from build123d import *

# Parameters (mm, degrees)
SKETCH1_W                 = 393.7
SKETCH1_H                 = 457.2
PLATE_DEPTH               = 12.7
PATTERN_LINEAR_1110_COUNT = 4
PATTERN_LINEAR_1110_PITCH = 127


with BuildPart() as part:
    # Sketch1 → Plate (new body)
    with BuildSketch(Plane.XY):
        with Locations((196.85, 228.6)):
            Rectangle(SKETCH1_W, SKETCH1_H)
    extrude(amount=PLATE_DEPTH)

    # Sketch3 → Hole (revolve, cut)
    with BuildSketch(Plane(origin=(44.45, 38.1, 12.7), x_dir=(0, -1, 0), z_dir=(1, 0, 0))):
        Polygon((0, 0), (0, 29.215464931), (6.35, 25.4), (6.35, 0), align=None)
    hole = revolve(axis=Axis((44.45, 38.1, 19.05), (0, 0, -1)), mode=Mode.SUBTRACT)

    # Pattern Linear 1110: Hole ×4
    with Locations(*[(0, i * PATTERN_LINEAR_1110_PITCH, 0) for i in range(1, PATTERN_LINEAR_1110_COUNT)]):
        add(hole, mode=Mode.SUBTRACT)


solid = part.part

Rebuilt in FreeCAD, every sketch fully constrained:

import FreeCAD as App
import Part
import Sketcher
Q = App.Units.Quantity

doc = App.newDocument("Part")
body = doc.addObject("PartDesign::Body", "Body")

# Sketch on XY plane
sketch1 = body.newObject("Sketcher::SketchObject", "Sketch")
sketch1.AttachmentSupport = (doc.getObject("XY_Plane"), [""])
sketch1.MapMode = "FlatFace"
sketch1.addGeometry([
    Part.LineSegment(App.Vector(0, 457.2, 0), App.Vector(0, 0, 0)),
    Part.LineSegment(App.Vector(0, 0, 0), App.Vector(393.7, 0, 0)),
    Part.LineSegment(App.Vector(393.7, 0, 0), App.Vector(393.7, 457.2, 0)),
    Part.LineSegment(App.Vector(393.7, 457.2, 0), App.Vector(0, 457.2, 0)),
], False)
sketch1.addConstraint([
    Sketcher.Constraint("Coincident", 0, 2, 1, 1),
    Sketcher.Constraint("Coincident", 1, 2, 2, 1),
    Sketcher.Constraint("Coincident", 2, 2, 3, 1),
    Sketcher.Constraint("Coincident", 3, 2, 0, 1),
    Sketcher.Constraint("Vertical", 0),
    Sketcher.Constraint("Horizontal", 1),
    Sketcher.Constraint("Vertical", 2),
    Sketcher.Constraint("Horizontal", 3),
    Sketcher.Constraint("Coincident", 0, 2, -1, 1),
    Sketcher.Constraint("DistanceY", 0, 2, 0, 1, Q("18 in")),
    Sketcher.Constraint("DistanceX", 1, 1, 1, 2, Q("15.5 in")),
])
pad1 = body.newObject("PartDesign::Pad", "Pad")
pad1.Profile = sketch1
pad1.Length = Q("0.5 in")

# Sketch on YZ plane
sketch2 = body.newObject("Sketcher::SketchObject", "Sketch001")
sketch2.AttachmentSupport = (doc.getObject("YZ_Plane"), [""])
sketch2.MapMode = "FlatFace"
sketch2.AttachmentOffset = App.Placement(App.Vector(0, 0, 1.75 * 25.4), App.Rotation())
sketch2.addGeometry([
    Part.LineSegment(App.Vector(38.1, -16.515465, 0), App.Vector(38.1, 12.7, 0)),
    Part.LineSegment(App.Vector(38.1, 12.7, 0), App.Vector(31.75, 12.7, 0)),
    Part.LineSegment(App.Vector(31.75, 12.7, 0), App.Vector(31.75, -12.7, 0)),
    Part.LineSegment(App.Vector(31.75, -12.7, 0), App.Vector(38.1, -16.515465, 0)),
], False)
sketch2.addGeometry(Part.LineSegment(App.Vector(38.1, 12.7, 0), App.Vector(38.1, -16.515465, 0)), True)  # axis
sketch2.addConstraint([
    Sketcher.Constraint("Coincident", 0, 2, 1, 1),
    Sketcher.Constraint("Coincident", 1, 2, 2, 1),
    Sketcher.Constraint("Coincident", 2, 2, 3, 1),
    Sketcher.Constraint("Coincident", 3, 2, 0, 1),
    Sketcher.Constraint("Vertical", 0),
    Sketcher.Constraint("Horizontal", 1),
    Sketcher.Constraint("Vertical", 2),
    Sketcher.Constraint("Vertical", 4),
    Sketcher.Constraint("Coincident", 4, 1, 0, 2),
    Sketcher.Constraint("Equal", 0, 4),
    Sketcher.Constraint("DistanceY", 2, 2, 2, 1, Q("1 in")),
    Sketcher.Constraint("Angle", 3, Q("-31 deg")),
    Sketcher.Constraint("DistanceX", 1, 2, 1, 1, Q("0.25 in")),
    Sketcher.Constraint("DistanceX", -1, 1, 0, 2, Q("1.5 in")),
    Sketcher.Constraint("DistanceY", -1, 1, 0, 2, Q("0.5 in")),
])
groove = body.newObject("PartDesign::Groove", "Groove")
groove.Profile = sketch2
groove.ReferenceAxis = (sketch2, ["Axis0"])
groove.Angle = 360
doc.recompute()

linearpattern = body.newObject("PartDesign::LinearPattern", "LinearPattern")
linearpattern.Originals = [groove]
linearpattern.Direction = (doc.getObject("Y_Axis"), [""])
linearpattern.Mode = "offset"
linearpattern.Offset = Q("5 in")
linearpattern.Occurrences = 4
body.Tip = linearpattern

doc.recompute()
